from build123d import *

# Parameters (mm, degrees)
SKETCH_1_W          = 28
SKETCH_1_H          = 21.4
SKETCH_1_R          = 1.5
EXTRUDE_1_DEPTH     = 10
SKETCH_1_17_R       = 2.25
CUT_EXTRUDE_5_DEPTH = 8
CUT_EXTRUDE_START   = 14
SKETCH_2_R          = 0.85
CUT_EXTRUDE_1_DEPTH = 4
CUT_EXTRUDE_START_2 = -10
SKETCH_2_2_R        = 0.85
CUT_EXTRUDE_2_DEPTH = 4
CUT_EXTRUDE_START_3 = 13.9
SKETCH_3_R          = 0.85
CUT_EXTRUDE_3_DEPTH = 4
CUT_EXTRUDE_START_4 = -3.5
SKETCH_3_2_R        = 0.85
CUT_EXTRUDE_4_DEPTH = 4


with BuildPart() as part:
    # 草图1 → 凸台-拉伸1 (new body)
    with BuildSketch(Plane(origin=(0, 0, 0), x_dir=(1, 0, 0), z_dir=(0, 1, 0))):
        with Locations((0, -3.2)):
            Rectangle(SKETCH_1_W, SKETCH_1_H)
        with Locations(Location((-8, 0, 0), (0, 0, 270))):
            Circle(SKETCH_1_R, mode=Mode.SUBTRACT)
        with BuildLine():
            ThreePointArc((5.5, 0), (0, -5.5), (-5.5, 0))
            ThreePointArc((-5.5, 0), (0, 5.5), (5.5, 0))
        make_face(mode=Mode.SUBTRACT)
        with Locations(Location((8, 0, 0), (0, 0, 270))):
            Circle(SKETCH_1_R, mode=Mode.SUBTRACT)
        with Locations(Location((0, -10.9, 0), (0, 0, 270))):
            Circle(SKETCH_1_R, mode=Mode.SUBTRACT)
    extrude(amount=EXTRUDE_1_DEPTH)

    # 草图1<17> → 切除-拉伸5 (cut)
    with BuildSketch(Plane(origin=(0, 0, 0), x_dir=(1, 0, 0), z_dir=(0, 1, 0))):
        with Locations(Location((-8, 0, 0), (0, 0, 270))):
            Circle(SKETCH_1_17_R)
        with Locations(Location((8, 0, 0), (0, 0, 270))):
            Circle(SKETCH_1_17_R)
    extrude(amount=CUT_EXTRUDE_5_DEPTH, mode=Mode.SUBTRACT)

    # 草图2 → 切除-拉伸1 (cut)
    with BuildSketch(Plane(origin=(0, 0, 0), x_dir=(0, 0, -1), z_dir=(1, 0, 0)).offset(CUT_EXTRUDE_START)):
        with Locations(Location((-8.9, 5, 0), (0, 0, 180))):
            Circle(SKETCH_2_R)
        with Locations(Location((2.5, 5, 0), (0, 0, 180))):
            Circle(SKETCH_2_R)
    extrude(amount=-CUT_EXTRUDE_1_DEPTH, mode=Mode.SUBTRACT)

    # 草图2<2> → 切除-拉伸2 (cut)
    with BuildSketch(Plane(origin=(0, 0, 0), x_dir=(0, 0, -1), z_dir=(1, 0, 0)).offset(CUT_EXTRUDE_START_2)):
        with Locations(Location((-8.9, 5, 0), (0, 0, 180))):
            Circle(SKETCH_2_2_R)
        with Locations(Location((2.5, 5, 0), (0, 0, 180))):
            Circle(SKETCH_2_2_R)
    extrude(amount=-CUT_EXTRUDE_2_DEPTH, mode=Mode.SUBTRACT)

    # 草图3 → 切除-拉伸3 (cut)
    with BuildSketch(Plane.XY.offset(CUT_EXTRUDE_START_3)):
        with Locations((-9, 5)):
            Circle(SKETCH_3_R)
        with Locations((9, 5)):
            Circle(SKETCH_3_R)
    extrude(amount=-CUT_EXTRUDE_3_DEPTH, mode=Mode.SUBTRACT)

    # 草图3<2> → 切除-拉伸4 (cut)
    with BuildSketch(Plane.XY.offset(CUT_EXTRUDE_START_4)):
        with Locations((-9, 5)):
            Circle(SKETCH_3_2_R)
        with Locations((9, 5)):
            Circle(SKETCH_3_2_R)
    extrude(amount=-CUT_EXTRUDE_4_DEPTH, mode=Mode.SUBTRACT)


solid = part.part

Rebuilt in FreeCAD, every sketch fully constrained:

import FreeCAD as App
import Part
import Sketcher

doc = App.newDocument("Part")
body = doc.addObject("PartDesign::Body", "Body")

# Sketch on XZ plane
sketch1 = doc.addObject("Sketcher::SketchObject", "Sketch")
body.addObject(sketch1)
sketch1.AttachmentSupport = (doc.XZ_Plane, [""])
sketch1.MapMode = "FlatFace"
sketch1.addGeometry([
    Part.LineSegment(App.Vector(-14, -7.5, 0), App.Vector(-14, 13.9, 0)),  # 0
    Part.LineSegment(App.Vector(-14, 13.9, 0), App.Vector(14, 13.9, 0)),  # 1
    Part.LineSegment(App.Vector(14, 13.9, 0), App.Vector(14, -7.5, 0)),  # 2
    Part.LineSegment(App.Vector(14, -7.5, 0), App.Vector(-14, -7.5, 0)),  # 3
    Part.Circle(App.Vector(0, 10.9, 0), App.Vector(0, 0, 1), 1.5),  # 4
    Part.Circle(App.Vector(-8, 0, 0), App.Vector(0, 0, 1), 1.5),  # 5
    Part.Circle(App.Vector(0, 0, 0), App.Vector(0, 0, 1), 5.5),  # 6
    Part.Circle(App.Vector(8, 0, 0), App.Vector(0, 0, 1), 1.5),  # 7
], False)
sketch1.addConstraint([
    Sketcher.Constraint("Coincident", 0, 2, 1, 1),
    Sketcher.Constraint("Coincident", 1, 2, 2, 1),
    Sketcher.Constraint("Coincident", 2, 2, 3, 1),
    Sketcher.Constraint("Coincident", 3, 2, 0, 1),
    Sketcher.Constraint("Vertical", 0),
    Sketcher.Constraint("Horizontal", 1),
    Sketcher.Constraint("Vertical", 2),
    Sketcher.Constraint("Horizontal", 3),
    Sketcher.Constraint("Coincident", 6, 3, -1, 1),
    Sketcher.Constraint("Equal", 4, 5),
    Sketcher.Constraint("Equal", 5, 7),
    Sketcher.Constraint("Symmetric", 5, 3, 7, 3, -1, 1),
    Sketcher.Constraint("PointOnObject", 4, 3, -2),
    Sketcher.Constraint("PointOnObject", 5, 3, -1),
    Sketcher.Constraint("Diameter", 4, 3.0),
    Sketcher.Constraint("Diameter", 6, 11.0),
    Sketcher.Constraint("DistanceX", 1, 1, 1, 2, 28.0),
    Sketcher.Constraint("DistanceY", 0, 1, 0, 2, 21.4),
    Sketcher.Constraint("DistanceX", 5, 3, -1, 1, 8.0),
    Sketcher.Constraint("DistanceX", 0, 2, -1, 1, 14.0),
    Sketcher.Constraint("DistanceY", 4, 3, 0, 2, 3.0),
    Sketcher.Constraint("DistanceY", -1, 1, 4, 3, 10.9),
])
pad1 = doc.addObject("PartDesign::Pad", "Pad")
body.addObject(pad1)
pad1.Profile = sketch1
pad1.Length = 10
pad1.Reversed = True

# Sketch on XZ plane
sketch2 = doc.addObject("Sketcher::SketchObject", "Sketch001")
body.addObject(sketch2)
sketch2.AttachmentSupport = (doc.XZ_Plane, [""])
sketch2.MapMode = "FlatFace"
sketch2.addGeometry([
    Part.Circle(App.Vector(-8, 0, 0), App.Vector(0, 0, 1), 2.2),
    Part.Circle(App.Vector(8, 0, 0), App.Vector(0, 0, 1), 2.2),
], False)
sketch2.addConstraint([
    Sketcher.Constraint("Equal", 0, 1),
    Sketcher.Constraint("Symmetric", 0, 3, 1, 3, -1, 1),
    Sketcher.Constraint("PointOnObject", 0, 3, -1),
    Sketcher.Constraint("Diameter", 0, 4.5),
    Sketcher.Constraint("DistanceX", 0, 3, -1, 1, 8.0),
])
pocket1 = doc.addObject("PartDesign::Pocket", "Pocket")
body.addObject(pocket1)
pocket1.Profile = sketch2
pocket1.Length = 8

# Sketch on YZ plane
sketch3 = doc.addObject("Sketcher::SketchObject", "Sketch002")
body.addObject(sketch3)
sketch3.AttachmentSupport = (doc.YZ_Plane, [""])
sketch3.MapMode = "FlatFace"
sketch3.AttachmentOffset = App.Placement(App.Vector(0, 0, 14), App.Rotation())
sketch3.addGeometry([
    Part.Circle(App.Vector(5, 8.9, 0), App.Vector(0, 0, 1), 0.8),
    Part.Circle(App.Vector(5, -2.5, 0), App.Vector(0, 0, 1), 0.8),
], False)
sketch3.addConstraint([
    Sketcher.Constraint("Equal", 0, 1),
    Sketcher.Constraint("Vertical", 0, 3, 1, 3),
    Sketcher.Constraint("Diameter", 0, 1.7),
    Sketcher.Constraint("DistanceX", -1, 1, 0, 3, 5.0),
    Sketcher.Constraint("DistanceY", -1, 1, 0, 3, 8.9),
    Sketcher.Constraint("DistanceY", 1, 3, -1, 1, 2.5),
])
pocket2 = doc.addObject("PartDesign::Pocket", "Pocket001")
body.addObject(pocket2)
pocket2.Profile = sketch3
pocket2.Length = 4

# Sketch on YZ plane
sketch4 = doc.addObject("Sketcher::SketchObject", "Sketch003")
body.addObject(sketch4)
sketch4.AttachmentSupport = (doc.YZ_Plane, [""])
sketch4.MapMode = "FlatFace"
sketch4.AttachmentOffset = App.Placement(App.Vector(0, 0, -10), App.Rotation())
sketch4.addGeometry([
    Part.Circle(App.Vector(5, 8.9, 0), App.Vector(0, 0, 1), 0.8),
    Part.Circle(App.Vector(5, -2.5, 0), App.Vector(0, 0, 1), 0.8),
], False)
sketch4.addConstraint([
    Sketcher.Constraint("Equal", 0, 1),
    Sketcher.Constraint("Vertical", 0, 3, 1, 3),
    Sketcher.Constraint("Diameter", 0, 1.7),
    Sketcher.Constraint("DistanceX", -1, 1, 0, 3, 5.0),
    Sketcher.Constraint("DistanceY", -1, 1, 0, 3, 8.9),
    Sketcher.Constraint("DistanceY", 1, 3, -1, 1, 2.5),
])
pocket3 = doc.addObject("PartDesign::Pocket", "Pocket002")
body.addObject(pocket3)
pocket3.Profile = sketch4
pocket3.Length = 4

# Sketch on XY plane
sketch5 = doc.addObject("Sketcher::SketchObject", "Sketch004")
body.addObject(sketch5)
sketch5.AttachmentSupport = (doc.XY_Plane, [""])
sketch5.MapMode = "FlatFace"
sketch5.AttachmentOffset = App.Placement(App.Vector(0, 0, 13.9), App.Rotation())
sketch5.addGeometry([
    Part.Circle(App.Vector(-9, 5, 0), App.Vector(0, 0, 1), 0.8),
    Part.Circle(App.Vector(9, 5, 0), App.Vector(0, 0, 1), 0.8),
], False)
sketch5.addConstraint([
    Sketcher.Constraint("Equal", 0, 1),
    Sketcher.Constraint("Symmetric", 0, 3, 1, 3, -2),
    Sketcher.Constraint("Diameter", 0, 1.7),
    Sketcher.Constraint("DistanceX", 0, 3, -1, 1, 9.0),
    Sketcher.Constraint("DistanceY", -1, 1, 0, 3, 5.0),
])
pocket4 = doc.addObject("PartDesign::Pocket", "Pocket003")
body.addObject(pocket4)
pocket4.Profile = sketch5
pocket4.Length = 4

# Sketch on XY plane
sketch6 = doc.addObject("Sketcher::SketchObject", "Sketch005")
body.addObject(sketch6)
sketch6.AttachmentSupport = (doc.XY_Plane, [""])
sketch6.MapMode = "FlatFace"
sketch6.AttachmentOffset = App.Placement(App.Vector(0, 0, -3.5), App.Rotation())
sketch6.addGeometry([
    Part.Circle(App.Vector(-9, 5, 0), App.Vector(0, 0, 1), 0.8),
    Part.Circle(App.Vector(9, 5, 0), App.Vector(0, 0, 1), 0.8),
], False)
sketch6.addConstraint([
    Sketcher.Constraint("Equal", 0, 1),
    Sketcher.Constraint("Symmetric", 0, 3, 1, 3, -2),
    Sketcher.Constraint("Diameter", 0, 1.7),
    Sketcher.Constraint("DistanceX", 0, 3, -1, 1, 9.0),
    Sketcher.Constraint("DistanceY", -1, 1, 0, 3, 5.0),
])
pocket5 = doc.addObject("PartDesign::Pocket", "Pocket004")
body.addObject(pocket5)
pocket5.Profile = sketch6
pocket5.Length = 4

doc.recompute()
